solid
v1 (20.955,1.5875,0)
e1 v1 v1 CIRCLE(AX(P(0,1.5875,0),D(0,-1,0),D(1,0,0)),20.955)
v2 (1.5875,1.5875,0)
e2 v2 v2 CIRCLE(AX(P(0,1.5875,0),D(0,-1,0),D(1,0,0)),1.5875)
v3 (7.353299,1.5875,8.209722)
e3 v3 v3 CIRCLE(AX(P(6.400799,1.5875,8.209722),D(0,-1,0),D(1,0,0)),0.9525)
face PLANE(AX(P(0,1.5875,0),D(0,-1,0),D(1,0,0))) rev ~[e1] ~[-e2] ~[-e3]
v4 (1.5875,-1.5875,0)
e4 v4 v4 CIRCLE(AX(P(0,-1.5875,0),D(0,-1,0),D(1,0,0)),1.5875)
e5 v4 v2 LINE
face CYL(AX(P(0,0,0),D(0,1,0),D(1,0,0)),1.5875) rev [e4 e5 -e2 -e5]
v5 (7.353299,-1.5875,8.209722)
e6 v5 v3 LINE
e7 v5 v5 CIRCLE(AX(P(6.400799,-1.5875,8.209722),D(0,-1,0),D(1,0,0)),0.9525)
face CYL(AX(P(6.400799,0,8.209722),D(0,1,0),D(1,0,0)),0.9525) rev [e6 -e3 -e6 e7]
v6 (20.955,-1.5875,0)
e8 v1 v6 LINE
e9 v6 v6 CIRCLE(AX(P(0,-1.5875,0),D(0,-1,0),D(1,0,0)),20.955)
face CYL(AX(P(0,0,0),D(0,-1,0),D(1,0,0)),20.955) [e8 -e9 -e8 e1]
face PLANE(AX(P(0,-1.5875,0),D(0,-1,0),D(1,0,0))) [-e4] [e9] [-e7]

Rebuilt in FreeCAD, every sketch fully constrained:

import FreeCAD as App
import Part
import Sketcher

V = App.Vector
Q = App.Units.Quantity

doc = App.newDocument("Part")
body = doc.addObject("PartDesign::Body", "Body")

sketch1 = body.newObject("Sketcher::SketchObject", "Sketch")
sketch1.AttachmentSupport = (doc.getObject("XZ_Plane"), [""])
sketch1.MapMode = "FlatFace"
sketch1.addGeometry(Part.Circle(V(0, 0, 0), V(0, 0, 1), 21), False)
sketch1.addGeometry(Part.Circle(V(0, 0, 0), V(0, 0, 1), 1.6), False)
sketch1.addGeometry(Part.Circle(V(6.4, 8.2, 0), V(0, 0, 1), 1), False)
sketch1.addConstraint(Sketcher.Constraint("Coincident", 0, 3, -1, 1))
sketch1.addConstraint(Sketcher.Constraint("Coincident", 1, 3, -1, 1))
sketch1.addConstraint(Sketcher.Constraint("Diameter", 0, Q("1.65 in")))
sketch1.addConstraint(Sketcher.Constraint("Diameter", 1, Q("0.125 in")))
sketch1.addConstraint(Sketcher.Constraint("Diameter", 2, Q("0.075 in")))
sketch1.addConstraint(Sketcher.Constraint("DistanceX", -1, 1, 2, 3, Q("0.252 in")))
sketch1.addConstraint(Sketcher.Constraint("DistanceY", -1, 1, 2, 3, Q("8.209722 mm")))
pad1 = body.newObject("PartDesign::Pad", "Pad")
pad1.Profile = sketch1
pad1.Length = Q("0.125 in")
pad1.Midplane = True

doc.recompute()
